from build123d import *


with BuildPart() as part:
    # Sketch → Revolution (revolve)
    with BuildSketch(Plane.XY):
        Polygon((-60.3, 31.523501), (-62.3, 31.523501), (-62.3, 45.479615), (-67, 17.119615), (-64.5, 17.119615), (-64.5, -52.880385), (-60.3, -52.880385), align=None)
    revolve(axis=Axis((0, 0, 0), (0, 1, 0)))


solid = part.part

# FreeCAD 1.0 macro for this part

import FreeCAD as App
import Part
import Sketcher

doc = App.newDocument("Part")
body = doc.addObject("PartDesign::Body", "Body")

sketch1 = doc.addObject("Sketcher::SketchObject", "Sketch")
body.addObject(sketch1)
sketch1.AttachmentSupport = (doc.XY_Plane, [""])
sketch1.MapMode = "FlatFace"
sketch1.addGeometry([
    Part.LineSegment(App.Vector(-60.3, 31.5, 0), App.Vector(-62.3, 31.5, 0)),
    Part.LineSegment(App.Vector(-62.3, 31.5, 0), App.Vector(-62.3, 45.5, 0)),
    Part.LineSegment(App.Vector(-62.3, 45.5, 0), App.Vector(-67, 17.1, 0)),
    Part.LineSegment(App.Vector(-67, 17.1, 0), App.Vector(-64.5, 17.1, 0)),
    Part.LineSegment(App.Vector(-64.5, 17.1, 0), App.Vector(-64.5, -52.9, 0)),
    Part.LineSegment(App.Vector(-64.5, -52.9, 0), App.Vector(-60.3, -52.9, 0)),
    Part.LineSegment(App.Vector(-60.3, -52.9, 0), App.Vector(-60.3, 31.5, 0)),
], False)
sketch1.addConstraint([
    Sketcher.Constraint("Coincident", 0, 2, 1, 1),
    Sketcher.Constraint("Coincident", 1, 2, 2, 1),
    Sketcher.Constraint("Coincident", 2, 2, 3, 1),
    Sketcher.Constraint("Coincident", 3, 2, 4, 1),
    Sketcher.Constraint("Coincident", 4, 2, 5, 1),
    Sketcher.Constraint("Coincident", 5, 2, 6, 1),
    Sketcher.Constraint("Coincident", 6, 2, 0, 1),
    Sketcher.Constraint("Horizontal", 0),
    Sketcher.Constraint("Vertical", 1),
    Sketcher.Constraint("Horizontal", 3),
    Sketcher.Constraint("Vertical", 4),
    Sketcher.Constraint("Horizontal", 5),
    Sketcher.Constraint("Vertical", 6),
    Sketcher.Constraint("DistanceX", 0, 2, 0, 1, 2.0),
    Sketcher.Constraint("DistanceY", 4, 2, 4, 1, 70.0),
    Sketcher.Constraint("DistanceX", 3, 1, 3, 2, 2.5),
    Sketcher.Constraint("DistanceX", 5, 1, 5, 2, 4.2),
    Sketcher.Constraint("DistanceX", 2, 2, -1, 1, 67.0),
    Sketcher.Constraint("DistanceY", 2, 2, 1, 2, 28.36),
    Sketcher.Constraint("DistanceY", -1, 1, 0, 2, 31.523501),
    Sketcher.Constraint("DistanceY", 1, 1, 1, 2, 13.956114),
])
revolution = doc.addObject("PartDesign::Revolution", "Revolution")
body.addObject(revolution)
revolution.Profile = sketch1
revolution.ReferenceAxis = (sketch1, ["V_Axis"])
revolution.Angle = 360

doc.recompute()
